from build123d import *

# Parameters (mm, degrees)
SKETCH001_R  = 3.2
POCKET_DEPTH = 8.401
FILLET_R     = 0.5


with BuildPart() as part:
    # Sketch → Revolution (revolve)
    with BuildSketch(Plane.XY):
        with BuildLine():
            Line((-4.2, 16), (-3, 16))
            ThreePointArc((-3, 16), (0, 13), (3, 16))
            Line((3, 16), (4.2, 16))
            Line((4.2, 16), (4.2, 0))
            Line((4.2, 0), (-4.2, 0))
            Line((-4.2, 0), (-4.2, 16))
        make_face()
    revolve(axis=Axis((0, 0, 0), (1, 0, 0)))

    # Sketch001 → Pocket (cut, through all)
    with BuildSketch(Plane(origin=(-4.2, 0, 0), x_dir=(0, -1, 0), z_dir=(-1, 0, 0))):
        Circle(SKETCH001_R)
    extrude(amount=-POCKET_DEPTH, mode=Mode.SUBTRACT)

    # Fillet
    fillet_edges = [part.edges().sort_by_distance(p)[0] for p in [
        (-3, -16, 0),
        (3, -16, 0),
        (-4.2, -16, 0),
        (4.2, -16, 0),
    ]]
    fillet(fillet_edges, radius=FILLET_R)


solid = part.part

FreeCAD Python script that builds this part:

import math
import FreeCAD as App
import Part
import Sketcher

V = App.Vector
Q = App.Units.Quantity


def edges_at(feature, points):
    """Names of the edges that pass closest to the given points."""
    edges = feature.Shape.Edges
    near = lambda p: min(range(len(edges)), key=lambda i: edges[i].distToShape(Part.Vertex(*p))[0])
    return sorted({f"Edge{near(p) + 1}" for p in points})

doc = App.newDocument("Part")
body = doc.addObject("PartDesign::Body", "Body")

# Sketch on XY plane
sketch1 = doc.addObject("Sketcher::SketchObject", "Sketch")
body.addObject(sketch1)
sketch1.AttachmentSupport = (doc.XY_Plane, [""])
sketch1.MapMode = "FlatFace"
sketch1.addGeometry([
    Part.LineSegment(V(-3, 16, 0), V(-4.2, 16, 0)),  # 0
    Part.LineSegment(V(-4.2, 16, 0), V(-4.2, 0, 0)),  # 1
    Part.LineSegment(V(-4.2, 0, 0), V(4.2, 0, 0)),  # 2
    Part.LineSegment(V(4.2, 0, 0), V(4.2, 16, 0)),  # 3
    Part.LineSegment(V(4.2, 16, 0), V(3, 16, 0)),  # 4
    Part.ArcOfCircle(Part.Circle(V(0, 16, 0), V(0, 0, 1), 3), math.radians(180), math.radians(360)),  # 5
], False)
sketch1.addConstraint([
    Sketcher.Constraint("Coincident", 0, 2, 1, 1),
    Sketcher.Constraint("Coincident", 1, 2, 2, 1),
    Sketcher.Constraint("Coincident", 2, 2, 3, 1),
    Sketcher.Constraint("Coincident", 3, 2, 4, 1),
    Sketcher.Constraint("Coincident", 4, 2, 5, 2),
    Sketcher.Constraint("Coincident", 5, 1, 0, 1),
    Sketcher.Constraint("Horizontal", 0),
    Sketcher.Constraint("Vertical", 1),
    Sketcher.Constraint("Horizontal", 2),
    Sketcher.Constraint("Vertical", 3),
    Sketcher.Constraint("Horizontal", 4),
    Sketcher.Constraint("Symmetric", 1, 2, 2, 2, -1, 1),
    Sketcher.Constraint("Symmetric", 4, 2, 5, 1, -2),
    Sketcher.Constraint("Horizontal", 5, 3, 0, 2),
    Sketcher.Constraint("Radius", 5, Q("3 mm")),
    Sketcher.Constraint("DistanceY", 1, 2, 1, 1, Q("16 mm")),
    Sketcher.Constraint("DistanceX", 0, 2, 0, 1, Q("1.2 mm")),
])
revolution = doc.addObject("PartDesign::Revolution", "Revolution")
body.addObject(revolution)
revolution.Profile = sketch1
revolution.ReferenceAxis = (sketch1, ["H_Axis"])
revolution.Angle = 360

# Sketch on YZ plane
sketch2 = doc.addObject("Sketcher::SketchObject", "Sketch001")
body.addObject(sketch2)
sketch2.AttachmentSupport = (doc.YZ_Plane, [""])
sketch2.MapMode = "FlatFace"
sketch2.AttachmentOffset = App.Placement(V(0, 0, -4.2), App.Rotation())
sketch2.addGeometry(Part.Circle(V(0, 0, 0), V(0, 0, 1), 3.2), False)
sketch2.addConstraint([
    Sketcher.Constraint("Coincident", 0, 3, -1, 1),
    Sketcher.Constraint("Diameter", 0, Q("6.4 mm")),
])
pocket1 = doc.addObject("PartDesign::Pocket", "Pocket")
body.addObject(pocket1)
pocket1.Profile = sketch2
pocket1.Type = "ThroughAll"
pocket1.Reversed = True
doc.recompute()

fillet = doc.addObject("PartDesign::Fillet", "Fillet")
body.addObject(fillet)
fillet.Base = (pocket1, edges_at(pocket1, [
    (-3, -16, 0),
    (3, -16, 0),
    (-4.2, -16, 0),
    (4.2, -16, 0),
]))
fillet.Radius = 0.5

doc.recompute()
